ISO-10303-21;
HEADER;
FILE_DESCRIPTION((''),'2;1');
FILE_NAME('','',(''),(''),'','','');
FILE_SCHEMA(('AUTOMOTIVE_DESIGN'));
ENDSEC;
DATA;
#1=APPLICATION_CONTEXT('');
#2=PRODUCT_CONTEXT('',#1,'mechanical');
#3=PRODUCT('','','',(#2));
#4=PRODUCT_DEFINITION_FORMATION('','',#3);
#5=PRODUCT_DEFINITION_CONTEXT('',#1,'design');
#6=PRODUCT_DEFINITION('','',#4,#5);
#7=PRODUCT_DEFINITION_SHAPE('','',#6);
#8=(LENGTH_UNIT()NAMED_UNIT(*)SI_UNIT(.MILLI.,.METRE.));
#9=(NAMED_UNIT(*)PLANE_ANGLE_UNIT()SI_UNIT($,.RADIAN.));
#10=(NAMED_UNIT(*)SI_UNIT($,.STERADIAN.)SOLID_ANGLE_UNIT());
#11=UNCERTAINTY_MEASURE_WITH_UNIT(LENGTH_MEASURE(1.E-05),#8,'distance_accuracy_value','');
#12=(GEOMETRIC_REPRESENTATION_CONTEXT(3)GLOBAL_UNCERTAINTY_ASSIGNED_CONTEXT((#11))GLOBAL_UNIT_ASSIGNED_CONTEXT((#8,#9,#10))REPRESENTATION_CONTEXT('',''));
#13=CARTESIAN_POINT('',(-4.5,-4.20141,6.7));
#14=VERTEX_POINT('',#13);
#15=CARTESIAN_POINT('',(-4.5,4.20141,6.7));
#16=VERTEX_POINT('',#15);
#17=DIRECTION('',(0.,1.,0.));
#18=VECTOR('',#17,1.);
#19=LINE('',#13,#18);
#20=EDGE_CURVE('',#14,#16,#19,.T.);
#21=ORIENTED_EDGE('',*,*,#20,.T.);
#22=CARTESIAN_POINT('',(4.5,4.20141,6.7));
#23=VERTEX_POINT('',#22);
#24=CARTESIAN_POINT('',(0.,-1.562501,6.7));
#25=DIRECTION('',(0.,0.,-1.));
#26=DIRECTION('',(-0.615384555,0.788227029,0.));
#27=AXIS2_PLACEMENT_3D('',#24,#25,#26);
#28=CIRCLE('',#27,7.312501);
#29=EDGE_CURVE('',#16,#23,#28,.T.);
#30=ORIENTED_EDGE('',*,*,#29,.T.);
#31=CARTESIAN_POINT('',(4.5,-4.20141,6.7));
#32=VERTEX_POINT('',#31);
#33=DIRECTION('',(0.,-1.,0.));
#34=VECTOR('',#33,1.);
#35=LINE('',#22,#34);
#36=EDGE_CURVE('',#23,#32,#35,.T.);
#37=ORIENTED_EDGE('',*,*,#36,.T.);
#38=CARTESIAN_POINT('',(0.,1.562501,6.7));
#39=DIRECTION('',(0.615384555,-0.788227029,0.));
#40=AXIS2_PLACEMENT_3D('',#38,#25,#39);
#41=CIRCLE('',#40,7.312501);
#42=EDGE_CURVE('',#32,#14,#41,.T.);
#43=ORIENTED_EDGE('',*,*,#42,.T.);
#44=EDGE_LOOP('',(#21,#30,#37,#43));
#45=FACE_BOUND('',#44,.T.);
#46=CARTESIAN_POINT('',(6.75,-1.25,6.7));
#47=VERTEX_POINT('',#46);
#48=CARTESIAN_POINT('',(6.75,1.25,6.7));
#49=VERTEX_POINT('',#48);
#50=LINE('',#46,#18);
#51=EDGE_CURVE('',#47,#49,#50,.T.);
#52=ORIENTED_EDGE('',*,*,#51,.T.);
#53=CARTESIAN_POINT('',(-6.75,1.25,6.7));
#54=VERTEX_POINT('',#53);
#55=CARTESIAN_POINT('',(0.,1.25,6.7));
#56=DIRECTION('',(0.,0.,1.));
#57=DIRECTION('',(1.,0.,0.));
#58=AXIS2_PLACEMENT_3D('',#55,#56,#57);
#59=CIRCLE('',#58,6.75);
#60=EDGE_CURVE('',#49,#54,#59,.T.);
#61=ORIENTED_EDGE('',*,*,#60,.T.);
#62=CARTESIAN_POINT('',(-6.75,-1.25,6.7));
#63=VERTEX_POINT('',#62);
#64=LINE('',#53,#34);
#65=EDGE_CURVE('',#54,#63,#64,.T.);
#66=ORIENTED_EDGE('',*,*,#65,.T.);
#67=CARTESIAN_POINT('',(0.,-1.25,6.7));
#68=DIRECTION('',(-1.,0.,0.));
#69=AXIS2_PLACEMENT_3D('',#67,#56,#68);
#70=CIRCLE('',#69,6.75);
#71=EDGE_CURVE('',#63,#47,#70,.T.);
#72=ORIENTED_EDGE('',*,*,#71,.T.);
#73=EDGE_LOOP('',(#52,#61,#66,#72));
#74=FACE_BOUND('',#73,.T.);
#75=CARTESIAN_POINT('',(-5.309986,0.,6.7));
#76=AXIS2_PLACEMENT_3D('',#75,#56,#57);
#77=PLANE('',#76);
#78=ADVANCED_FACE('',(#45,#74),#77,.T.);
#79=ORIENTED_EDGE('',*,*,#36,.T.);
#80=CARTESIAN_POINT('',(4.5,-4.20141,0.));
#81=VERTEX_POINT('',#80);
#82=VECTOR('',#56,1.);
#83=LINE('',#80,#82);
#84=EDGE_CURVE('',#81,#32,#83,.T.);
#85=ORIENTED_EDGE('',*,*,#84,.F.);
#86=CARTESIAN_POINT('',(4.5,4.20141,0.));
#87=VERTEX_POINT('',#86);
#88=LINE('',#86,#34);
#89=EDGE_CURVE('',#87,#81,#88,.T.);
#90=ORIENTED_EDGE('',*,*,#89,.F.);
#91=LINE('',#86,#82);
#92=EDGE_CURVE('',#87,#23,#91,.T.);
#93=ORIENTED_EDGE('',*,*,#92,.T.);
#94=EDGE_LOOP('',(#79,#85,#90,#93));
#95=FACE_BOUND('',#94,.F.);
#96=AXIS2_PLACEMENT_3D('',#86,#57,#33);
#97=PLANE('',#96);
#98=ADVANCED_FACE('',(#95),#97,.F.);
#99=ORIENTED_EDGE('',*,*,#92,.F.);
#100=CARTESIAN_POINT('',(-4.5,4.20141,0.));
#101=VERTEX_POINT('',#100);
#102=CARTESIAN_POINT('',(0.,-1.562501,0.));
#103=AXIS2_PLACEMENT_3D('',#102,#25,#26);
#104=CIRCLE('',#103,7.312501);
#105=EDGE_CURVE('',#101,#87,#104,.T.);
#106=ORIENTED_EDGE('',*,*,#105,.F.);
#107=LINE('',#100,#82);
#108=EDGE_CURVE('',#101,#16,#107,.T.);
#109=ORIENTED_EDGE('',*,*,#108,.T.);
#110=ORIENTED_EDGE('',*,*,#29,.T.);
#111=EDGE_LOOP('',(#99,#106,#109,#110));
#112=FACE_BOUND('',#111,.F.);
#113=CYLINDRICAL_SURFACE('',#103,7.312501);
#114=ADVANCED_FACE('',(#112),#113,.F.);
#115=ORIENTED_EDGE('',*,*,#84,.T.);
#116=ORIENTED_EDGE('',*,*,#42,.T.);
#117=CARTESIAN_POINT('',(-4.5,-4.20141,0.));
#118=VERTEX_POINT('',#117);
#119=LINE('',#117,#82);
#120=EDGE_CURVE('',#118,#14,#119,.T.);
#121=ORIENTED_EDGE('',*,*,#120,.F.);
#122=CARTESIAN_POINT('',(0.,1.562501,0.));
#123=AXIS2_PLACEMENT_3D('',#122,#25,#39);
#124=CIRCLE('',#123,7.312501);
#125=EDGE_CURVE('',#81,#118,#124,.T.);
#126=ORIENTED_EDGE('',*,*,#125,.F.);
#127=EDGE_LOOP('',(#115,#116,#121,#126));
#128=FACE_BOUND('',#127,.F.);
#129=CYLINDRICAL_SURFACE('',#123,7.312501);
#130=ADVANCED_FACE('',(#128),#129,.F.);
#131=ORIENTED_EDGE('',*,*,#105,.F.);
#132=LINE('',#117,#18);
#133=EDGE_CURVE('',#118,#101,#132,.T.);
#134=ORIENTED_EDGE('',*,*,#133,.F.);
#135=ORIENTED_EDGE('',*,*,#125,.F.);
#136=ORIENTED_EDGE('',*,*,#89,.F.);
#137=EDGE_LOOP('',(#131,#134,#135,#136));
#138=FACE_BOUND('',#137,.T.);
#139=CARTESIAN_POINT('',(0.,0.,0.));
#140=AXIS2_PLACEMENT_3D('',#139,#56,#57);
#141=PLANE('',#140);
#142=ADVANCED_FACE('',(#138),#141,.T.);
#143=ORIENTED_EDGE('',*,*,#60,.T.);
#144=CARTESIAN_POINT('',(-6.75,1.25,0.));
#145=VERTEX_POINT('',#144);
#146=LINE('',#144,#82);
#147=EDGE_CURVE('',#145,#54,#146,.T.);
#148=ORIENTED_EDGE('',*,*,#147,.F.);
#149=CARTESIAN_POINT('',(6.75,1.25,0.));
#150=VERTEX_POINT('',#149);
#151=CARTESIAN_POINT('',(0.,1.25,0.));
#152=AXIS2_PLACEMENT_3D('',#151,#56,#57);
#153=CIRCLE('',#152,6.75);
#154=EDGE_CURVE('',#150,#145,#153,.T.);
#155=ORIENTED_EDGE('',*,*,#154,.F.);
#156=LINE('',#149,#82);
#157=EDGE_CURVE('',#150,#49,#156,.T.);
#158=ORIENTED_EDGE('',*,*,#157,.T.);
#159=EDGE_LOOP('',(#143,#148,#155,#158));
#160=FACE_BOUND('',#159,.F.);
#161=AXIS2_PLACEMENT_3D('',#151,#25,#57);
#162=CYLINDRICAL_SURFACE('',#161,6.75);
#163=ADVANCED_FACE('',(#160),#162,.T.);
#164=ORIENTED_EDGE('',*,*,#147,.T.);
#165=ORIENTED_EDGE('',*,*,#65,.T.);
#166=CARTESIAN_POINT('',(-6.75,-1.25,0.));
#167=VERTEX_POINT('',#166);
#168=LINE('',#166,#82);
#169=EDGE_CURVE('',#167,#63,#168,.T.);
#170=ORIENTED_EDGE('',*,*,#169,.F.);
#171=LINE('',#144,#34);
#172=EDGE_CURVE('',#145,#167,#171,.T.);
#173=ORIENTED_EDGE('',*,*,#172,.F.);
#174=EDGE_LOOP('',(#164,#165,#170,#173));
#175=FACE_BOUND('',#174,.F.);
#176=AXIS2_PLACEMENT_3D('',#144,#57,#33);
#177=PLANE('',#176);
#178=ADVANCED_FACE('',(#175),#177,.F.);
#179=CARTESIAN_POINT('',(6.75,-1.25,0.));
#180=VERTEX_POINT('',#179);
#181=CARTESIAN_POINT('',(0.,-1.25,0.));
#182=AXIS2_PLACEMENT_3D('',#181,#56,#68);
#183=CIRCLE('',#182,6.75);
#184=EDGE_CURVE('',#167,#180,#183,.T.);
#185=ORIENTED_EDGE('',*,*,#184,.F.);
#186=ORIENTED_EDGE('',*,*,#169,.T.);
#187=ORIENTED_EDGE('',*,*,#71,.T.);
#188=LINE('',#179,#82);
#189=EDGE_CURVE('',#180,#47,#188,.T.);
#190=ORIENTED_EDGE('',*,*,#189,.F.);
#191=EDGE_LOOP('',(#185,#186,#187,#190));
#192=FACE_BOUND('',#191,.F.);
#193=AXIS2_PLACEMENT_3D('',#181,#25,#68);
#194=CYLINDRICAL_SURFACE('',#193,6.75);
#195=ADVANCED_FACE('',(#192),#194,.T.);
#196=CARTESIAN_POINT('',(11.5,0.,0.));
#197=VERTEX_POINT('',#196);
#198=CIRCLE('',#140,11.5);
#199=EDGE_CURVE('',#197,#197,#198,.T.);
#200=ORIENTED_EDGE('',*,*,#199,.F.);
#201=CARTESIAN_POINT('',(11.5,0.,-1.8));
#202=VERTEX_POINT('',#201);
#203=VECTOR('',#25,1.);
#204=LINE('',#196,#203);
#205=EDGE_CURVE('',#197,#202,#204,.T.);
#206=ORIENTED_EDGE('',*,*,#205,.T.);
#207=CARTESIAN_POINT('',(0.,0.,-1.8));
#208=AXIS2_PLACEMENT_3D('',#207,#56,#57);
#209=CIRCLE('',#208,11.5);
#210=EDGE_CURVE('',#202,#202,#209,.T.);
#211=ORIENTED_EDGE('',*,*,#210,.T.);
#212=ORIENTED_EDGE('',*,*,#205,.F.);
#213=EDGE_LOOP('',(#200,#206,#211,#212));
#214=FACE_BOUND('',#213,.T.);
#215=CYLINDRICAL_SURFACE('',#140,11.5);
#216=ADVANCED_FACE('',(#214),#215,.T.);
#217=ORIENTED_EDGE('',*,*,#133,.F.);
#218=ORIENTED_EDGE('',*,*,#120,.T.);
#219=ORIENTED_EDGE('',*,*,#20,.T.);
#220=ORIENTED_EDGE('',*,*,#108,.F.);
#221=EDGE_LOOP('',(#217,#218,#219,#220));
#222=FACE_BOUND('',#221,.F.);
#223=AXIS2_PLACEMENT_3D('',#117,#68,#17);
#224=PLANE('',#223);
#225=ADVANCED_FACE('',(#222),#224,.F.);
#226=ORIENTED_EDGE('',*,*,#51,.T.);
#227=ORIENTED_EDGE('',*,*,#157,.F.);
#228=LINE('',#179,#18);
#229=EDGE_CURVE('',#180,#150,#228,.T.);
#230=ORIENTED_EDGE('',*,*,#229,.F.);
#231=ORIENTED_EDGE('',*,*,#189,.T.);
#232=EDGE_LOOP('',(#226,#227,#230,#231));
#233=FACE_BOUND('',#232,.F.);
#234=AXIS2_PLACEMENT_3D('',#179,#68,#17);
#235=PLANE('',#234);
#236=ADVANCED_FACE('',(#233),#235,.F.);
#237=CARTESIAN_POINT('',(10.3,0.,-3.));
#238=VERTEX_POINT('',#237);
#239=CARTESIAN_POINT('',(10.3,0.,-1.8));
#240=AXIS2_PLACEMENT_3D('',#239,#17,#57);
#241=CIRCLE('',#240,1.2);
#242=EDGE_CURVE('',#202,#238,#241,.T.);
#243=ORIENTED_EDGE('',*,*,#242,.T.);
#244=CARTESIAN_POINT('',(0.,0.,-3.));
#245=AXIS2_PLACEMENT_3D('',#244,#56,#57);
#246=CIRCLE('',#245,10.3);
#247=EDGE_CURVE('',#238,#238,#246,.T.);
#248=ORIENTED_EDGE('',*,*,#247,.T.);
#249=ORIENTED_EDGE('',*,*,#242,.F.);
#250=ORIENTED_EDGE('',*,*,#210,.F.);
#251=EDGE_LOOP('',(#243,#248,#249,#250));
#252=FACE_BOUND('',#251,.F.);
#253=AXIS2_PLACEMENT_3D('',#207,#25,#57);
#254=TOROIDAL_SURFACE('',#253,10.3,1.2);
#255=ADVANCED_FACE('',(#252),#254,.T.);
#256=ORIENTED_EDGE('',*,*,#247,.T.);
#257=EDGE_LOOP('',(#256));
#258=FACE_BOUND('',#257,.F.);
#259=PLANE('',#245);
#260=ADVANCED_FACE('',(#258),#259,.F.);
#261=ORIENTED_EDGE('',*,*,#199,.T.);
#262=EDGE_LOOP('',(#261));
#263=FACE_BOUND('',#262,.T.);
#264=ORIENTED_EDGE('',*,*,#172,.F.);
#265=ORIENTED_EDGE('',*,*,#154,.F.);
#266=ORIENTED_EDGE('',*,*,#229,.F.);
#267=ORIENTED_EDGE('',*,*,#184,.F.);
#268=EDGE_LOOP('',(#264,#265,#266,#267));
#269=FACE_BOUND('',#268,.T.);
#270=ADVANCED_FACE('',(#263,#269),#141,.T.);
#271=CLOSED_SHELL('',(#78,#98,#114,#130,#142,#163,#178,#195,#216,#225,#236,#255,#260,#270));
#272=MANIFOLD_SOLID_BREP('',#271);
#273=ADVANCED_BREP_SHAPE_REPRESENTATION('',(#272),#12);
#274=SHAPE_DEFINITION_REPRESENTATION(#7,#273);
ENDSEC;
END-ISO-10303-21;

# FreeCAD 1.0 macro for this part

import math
import FreeCAD as App
import Part
import Sketcher
Q = App.Units.Quantity


def edges_at(feature, points):
    """Names of the edges that pass closest to the given points."""
    edges = feature.Shape.Edges
    near = lambda p: min(range(len(edges)), key=lambda i: edges[i].distToShape(Part.Vertex(*p))[0])
    return sorted({f"Edge{near(p) + 1}" for p in points})

doc = App.newDocument("Part")
params = doc.addObject("Spreadsheet::Sheet", "Params")
for row, (alias, value) in enumerate([
    ("sketch1_diameter", "23 mm"),
    ("pad1_length", "3 mm"),
    ("fillet_radius", "1.2 mm"),
    ("sketch2_radius", "6.75 mm"),
    ("sketch2_height", "2.5 mm"),
    ("pad2_length", "6.7 mm"),
], start=1):
    params.set(f"A{row}", alias)
    params.set(f"B{row}", "=" + value)
    params.setAlias(f"B{row}", alias)

body = doc.addObject("PartDesign::Body", "Body")

sketch1 = body.newObject("Sketcher::SketchObject", "Sketch")
sketch1.AttachmentSupport = (doc.getObject("XY_Plane"), [""])
sketch1.MapMode = "FlatFace"
sketch1.addGeometry(Part.Circle(App.Vector(0, 0, 0), App.Vector(0, 0, 1), 12), False)
sketch1.addConstraint([
    Sketcher.Constraint("Coincident", 0, 3, -1, 1),
    Sketcher.Constraint("Diameter", 0, Q("23 mm")),
])
sketch1.setExpression("Constraints[1]", "Params.sketch1_diameter")
pad1 = body.newObject("PartDesign::Pad", "Pad")
pad1.Profile = sketch1
pad1.setExpression("Length", "Params.pad1_length")
pad1.Reversed = True
doc.recompute()

fillet = body.newObject("PartDesign::Fillet", "Fillet")
fillet.Base = (pad1, edges_at(pad1, [(-11.5, 0, -3)]))
fillet.setExpression("Radius", "Params.fillet_radius")

sketch2 = body.newObject("Sketcher::SketchObject", "Sketch001")
sketch2.AttachmentSupport = (doc.getObject("XY_Plane"), [""])
sketch2.MapMode = "FlatFace"
sketch2.addGeometry([
    Part.LineSegment(App.Vector(-6.8, 1.2, 0), App.Vector(-6.8, -1.2, 0)),
    Part.ArcOfCircle(Part.Circle(App.Vector(0, -1.2, 0), App.Vector(0, 0, 1), 6.8), math.radians(180), math.radians(360)),
    Part.LineSegment(App.Vector(6.8, -1.2, 0), App.Vector(6.8, 1.2, 0)),
    Part.ArcOfCircle(Part.Circle(App.Vector(0, 1.2, 0), App.Vector(0, 0, 1), 6.8), math.radians(0), math.radians(180)),
    Part.LineSegment(App.Vector(-4.5, -4.2, 0), App.Vector(-4.5, 4.2, 0)),
    Part.ArcOfCircle(Part.Circle(App.Vector(0, -1.6, 0), App.Vector(0, 0, 1), 7.3), math.radians(52), math.radians(128)),
    Part.LineSegment(App.Vector(4.5, 4.2, 0), App.Vector(4.5, -4.2, 0)),
    Part.ArcOfCircle(Part.Circle(App.Vector(0, 1.6, 0), App.Vector(0, 0, 1), 7.3), math.radians(-128), math.radians(-52)),
], False)
sketch2.addConstraint([
    Sketcher.Constraint("Tangent", 0, 2, 1, 1),
    Sketcher.Constraint("Tangent", 1, 2, 2, 1),
    Sketcher.Constraint("Tangent", 2, 2, 3, 1),
    Sketcher.Constraint("Tangent", 3, 2, 0, 1),
    Sketcher.Constraint("Coincident", 4, 2, 5, 2),
    Sketcher.Constraint("Coincident", 5, 1, 6, 1),
    Sketcher.Constraint("Coincident", 6, 2, 7, 2),
    Sketcher.Constraint("Coincident", 7, 1, 4, 1),
    Sketcher.Constraint("Vertical", 0),
    Sketcher.Constraint("Vertical", 2),
    Sketcher.Constraint("Vertical", 4),
    Sketcher.Constraint("Vertical", 6),
    Sketcher.Constraint("Equal", 5, 7),
    Sketcher.Constraint("Symmetric", 1, 3, 3, 3, -1, 1),
    Sketcher.Constraint("Symmetric", 5, 3, 7, 3, -1, 1),
    Sketcher.Constraint("Symmetric", 4, 2, 5, 1, -2),
    Sketcher.Constraint("Radius", 1, Q("6.75 mm")),
    Sketcher.Constraint("DistanceY", 0, 2, 0, 1, Q("2.5 mm")),
    Sketcher.Constraint("DistanceX", 4, 2, -1, 1, Q("4.5 mm")),
    Sketcher.Constraint("Radius", 5, Q("7.312501 mm")),
    Sketcher.Constraint("DistanceY", 5, 3, 7, 3, Q("3.125001 mm")),
])
sketch2.setExpression("Constraints[16]", "Params.sketch2_radius")
sketch2.setExpression("Constraints[17]", "Params.sketch2_height")
pad2 = body.newObject("PartDesign::Pad", "Pad001")
pad2.Profile = sketch2
pad2.setExpression("Length", "Params.pad2_length")

doc.recompute()
